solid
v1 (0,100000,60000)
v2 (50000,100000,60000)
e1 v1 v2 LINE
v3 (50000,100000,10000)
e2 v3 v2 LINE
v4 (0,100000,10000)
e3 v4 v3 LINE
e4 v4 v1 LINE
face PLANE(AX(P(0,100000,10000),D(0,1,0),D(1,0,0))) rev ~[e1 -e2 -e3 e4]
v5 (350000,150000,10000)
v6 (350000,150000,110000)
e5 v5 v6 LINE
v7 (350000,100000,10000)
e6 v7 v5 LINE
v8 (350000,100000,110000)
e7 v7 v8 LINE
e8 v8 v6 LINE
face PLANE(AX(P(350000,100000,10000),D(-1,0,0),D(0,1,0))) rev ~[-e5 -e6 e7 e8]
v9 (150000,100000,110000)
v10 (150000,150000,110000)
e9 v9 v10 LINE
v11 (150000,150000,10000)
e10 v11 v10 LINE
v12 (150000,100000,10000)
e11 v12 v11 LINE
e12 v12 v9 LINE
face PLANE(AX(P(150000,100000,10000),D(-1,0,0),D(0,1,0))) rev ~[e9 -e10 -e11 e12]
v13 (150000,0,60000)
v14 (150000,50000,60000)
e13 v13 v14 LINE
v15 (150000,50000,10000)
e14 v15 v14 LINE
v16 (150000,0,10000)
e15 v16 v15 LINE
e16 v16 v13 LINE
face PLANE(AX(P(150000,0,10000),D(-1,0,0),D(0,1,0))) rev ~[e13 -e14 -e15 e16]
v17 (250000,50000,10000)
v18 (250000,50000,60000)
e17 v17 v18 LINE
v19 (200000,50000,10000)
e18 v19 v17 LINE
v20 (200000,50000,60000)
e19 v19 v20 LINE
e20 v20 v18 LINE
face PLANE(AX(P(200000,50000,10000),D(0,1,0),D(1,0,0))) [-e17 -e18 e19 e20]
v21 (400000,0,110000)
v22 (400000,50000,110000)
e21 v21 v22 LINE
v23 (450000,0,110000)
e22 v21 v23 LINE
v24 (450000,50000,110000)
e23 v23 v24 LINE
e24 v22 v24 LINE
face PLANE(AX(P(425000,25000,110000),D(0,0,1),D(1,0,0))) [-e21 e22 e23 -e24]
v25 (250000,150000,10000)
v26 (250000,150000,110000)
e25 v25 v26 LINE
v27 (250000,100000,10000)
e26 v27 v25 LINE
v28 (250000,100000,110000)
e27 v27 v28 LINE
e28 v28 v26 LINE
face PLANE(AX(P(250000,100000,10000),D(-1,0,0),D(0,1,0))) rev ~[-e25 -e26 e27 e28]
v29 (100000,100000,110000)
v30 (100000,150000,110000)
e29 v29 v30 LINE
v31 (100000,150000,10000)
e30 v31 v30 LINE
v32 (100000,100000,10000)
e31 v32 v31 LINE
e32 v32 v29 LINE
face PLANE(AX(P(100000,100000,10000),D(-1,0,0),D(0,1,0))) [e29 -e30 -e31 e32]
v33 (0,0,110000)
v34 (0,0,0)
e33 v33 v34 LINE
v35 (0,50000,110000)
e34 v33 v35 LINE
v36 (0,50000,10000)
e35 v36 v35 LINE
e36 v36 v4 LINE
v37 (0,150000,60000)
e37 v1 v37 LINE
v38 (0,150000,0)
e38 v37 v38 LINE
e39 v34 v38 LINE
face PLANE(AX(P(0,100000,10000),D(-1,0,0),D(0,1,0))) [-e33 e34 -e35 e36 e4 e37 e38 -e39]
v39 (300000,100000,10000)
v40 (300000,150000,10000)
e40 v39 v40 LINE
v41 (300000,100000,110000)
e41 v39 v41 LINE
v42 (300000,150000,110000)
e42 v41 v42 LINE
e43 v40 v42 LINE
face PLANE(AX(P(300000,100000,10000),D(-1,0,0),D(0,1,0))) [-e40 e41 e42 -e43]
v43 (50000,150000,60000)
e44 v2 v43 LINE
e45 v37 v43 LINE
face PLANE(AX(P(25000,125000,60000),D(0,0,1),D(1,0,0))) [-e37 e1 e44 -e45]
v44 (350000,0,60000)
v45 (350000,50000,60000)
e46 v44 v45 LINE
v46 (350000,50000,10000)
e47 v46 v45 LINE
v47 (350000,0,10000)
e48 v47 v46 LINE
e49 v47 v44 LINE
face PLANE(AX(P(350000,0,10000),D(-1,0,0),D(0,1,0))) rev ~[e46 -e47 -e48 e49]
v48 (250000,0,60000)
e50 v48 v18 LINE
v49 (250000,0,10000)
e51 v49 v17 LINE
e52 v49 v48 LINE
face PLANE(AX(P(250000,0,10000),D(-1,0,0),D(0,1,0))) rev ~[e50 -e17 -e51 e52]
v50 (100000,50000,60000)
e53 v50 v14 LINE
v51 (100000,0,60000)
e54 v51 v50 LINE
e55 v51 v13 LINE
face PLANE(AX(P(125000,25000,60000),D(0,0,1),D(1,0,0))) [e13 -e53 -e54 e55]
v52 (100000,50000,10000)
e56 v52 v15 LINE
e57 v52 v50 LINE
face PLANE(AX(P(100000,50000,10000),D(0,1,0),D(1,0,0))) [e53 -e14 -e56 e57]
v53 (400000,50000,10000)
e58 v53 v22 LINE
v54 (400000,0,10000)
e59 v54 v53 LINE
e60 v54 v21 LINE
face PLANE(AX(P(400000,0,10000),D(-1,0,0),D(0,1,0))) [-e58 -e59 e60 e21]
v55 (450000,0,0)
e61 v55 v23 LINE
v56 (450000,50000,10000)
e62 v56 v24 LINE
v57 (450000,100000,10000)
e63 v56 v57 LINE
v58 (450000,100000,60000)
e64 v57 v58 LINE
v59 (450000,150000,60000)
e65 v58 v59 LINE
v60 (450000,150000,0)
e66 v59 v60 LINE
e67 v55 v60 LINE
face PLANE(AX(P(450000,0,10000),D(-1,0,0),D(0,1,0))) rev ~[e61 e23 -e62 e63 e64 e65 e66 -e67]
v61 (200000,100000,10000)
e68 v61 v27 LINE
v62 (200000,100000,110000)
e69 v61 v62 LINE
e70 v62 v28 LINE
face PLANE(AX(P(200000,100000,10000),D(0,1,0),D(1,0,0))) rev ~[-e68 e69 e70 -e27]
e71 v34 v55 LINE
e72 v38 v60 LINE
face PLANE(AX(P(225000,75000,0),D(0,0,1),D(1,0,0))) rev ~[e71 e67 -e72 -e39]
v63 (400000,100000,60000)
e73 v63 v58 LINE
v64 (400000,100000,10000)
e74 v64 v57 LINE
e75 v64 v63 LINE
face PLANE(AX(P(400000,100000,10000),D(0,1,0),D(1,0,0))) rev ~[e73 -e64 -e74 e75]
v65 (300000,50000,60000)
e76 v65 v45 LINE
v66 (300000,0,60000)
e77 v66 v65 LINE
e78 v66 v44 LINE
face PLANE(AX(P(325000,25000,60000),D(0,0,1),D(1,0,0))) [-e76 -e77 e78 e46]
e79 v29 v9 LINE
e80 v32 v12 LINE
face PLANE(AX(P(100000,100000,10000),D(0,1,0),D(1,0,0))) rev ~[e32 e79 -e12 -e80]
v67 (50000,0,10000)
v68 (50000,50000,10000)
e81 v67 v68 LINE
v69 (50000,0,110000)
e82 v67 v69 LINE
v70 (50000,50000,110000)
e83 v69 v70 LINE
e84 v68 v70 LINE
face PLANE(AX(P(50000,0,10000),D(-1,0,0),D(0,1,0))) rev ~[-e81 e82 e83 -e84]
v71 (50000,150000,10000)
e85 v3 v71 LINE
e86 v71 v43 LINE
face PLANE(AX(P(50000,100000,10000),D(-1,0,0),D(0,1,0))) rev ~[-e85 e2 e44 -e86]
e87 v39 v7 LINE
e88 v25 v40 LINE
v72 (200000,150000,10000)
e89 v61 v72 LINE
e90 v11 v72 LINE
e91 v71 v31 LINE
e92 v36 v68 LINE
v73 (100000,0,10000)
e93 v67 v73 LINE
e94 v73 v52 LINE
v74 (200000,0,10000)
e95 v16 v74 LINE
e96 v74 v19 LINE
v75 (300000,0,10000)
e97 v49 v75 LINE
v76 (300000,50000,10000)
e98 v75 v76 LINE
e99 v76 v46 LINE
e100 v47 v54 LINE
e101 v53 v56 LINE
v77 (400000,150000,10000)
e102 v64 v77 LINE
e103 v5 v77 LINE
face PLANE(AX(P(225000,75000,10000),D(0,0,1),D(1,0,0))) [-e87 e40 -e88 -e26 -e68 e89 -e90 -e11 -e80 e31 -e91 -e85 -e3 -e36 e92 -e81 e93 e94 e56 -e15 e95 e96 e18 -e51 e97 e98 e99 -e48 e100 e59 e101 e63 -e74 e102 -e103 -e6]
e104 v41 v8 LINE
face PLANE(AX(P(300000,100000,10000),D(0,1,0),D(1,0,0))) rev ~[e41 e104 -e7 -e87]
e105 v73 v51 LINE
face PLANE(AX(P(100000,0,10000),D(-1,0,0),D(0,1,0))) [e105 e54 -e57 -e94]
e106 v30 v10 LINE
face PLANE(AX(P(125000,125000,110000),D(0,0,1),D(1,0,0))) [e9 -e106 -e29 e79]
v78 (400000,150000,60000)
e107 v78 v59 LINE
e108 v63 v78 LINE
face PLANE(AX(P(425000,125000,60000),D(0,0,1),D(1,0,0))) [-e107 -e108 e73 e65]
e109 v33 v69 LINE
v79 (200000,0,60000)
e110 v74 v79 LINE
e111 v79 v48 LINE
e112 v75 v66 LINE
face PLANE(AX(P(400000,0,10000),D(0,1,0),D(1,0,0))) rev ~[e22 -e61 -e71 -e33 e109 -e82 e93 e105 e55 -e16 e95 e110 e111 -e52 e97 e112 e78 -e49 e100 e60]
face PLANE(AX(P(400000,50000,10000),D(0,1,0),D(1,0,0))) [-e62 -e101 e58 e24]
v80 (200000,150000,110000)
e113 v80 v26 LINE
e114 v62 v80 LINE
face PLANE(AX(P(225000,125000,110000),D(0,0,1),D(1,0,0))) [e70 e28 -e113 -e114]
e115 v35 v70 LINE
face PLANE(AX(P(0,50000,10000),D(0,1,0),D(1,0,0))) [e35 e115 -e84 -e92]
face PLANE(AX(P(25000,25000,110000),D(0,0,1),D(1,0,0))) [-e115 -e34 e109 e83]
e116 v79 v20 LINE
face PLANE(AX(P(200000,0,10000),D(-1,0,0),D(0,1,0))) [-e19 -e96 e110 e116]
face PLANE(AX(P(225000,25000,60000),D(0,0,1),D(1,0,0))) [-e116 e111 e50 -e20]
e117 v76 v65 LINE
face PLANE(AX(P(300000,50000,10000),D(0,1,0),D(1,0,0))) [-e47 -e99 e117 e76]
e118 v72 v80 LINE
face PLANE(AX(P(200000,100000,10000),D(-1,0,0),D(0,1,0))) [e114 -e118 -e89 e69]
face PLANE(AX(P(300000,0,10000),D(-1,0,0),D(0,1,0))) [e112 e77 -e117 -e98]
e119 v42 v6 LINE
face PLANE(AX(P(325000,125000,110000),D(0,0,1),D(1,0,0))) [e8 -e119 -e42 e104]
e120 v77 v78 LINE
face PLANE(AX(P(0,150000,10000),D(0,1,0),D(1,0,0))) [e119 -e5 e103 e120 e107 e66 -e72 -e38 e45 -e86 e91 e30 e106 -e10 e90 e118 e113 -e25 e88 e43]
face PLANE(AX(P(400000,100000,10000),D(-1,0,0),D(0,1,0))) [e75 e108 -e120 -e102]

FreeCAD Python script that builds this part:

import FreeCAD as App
import Part
import Sketcher
from FreeCAD import Vector
Q = App.Units.Quantity

doc = App.newDocument("Part")
body = doc.addObject("PartDesign::Body", "Body")

# Sketch on XY plane
sketch1 = body.newObject("Sketcher::SketchObject", "Sketch")
sketch1.AttachmentSupport = (doc.getObject("XY_Plane"), [""])
sketch1.MapMode = "FlatFace"
sketch1.addGeometry([
    Part.LineSegment(Vector(0, 150000, 0), Vector(0, 0, 0)),
    Part.LineSegment(Vector(0, 0, 0), Vector(450000, 0, 0)),
    Part.LineSegment(Vector(450000, 0, 0), Vector(450000, 150000, 0)),
    Part.LineSegment(Vector(450000, 150000, 0), Vector(0, 150000, 0)),
], False)
sketch1.addConstraint([
    Sketcher.Constraint("Coincident", 0, 2, 1, 1),
    Sketcher.Constraint("Coincident", 1, 2, 2, 1),
    Sketcher.Constraint("Coincident", 2, 2, 3, 1),
    Sketcher.Constraint("Coincident", 3, 2, 0, 1),
    Sketcher.Constraint("Vertical", 0),
    Sketcher.Constraint("Horizontal", 1),
    Sketcher.Constraint("Vertical", 2),
    Sketcher.Constraint("Horizontal", 3),
    Sketcher.Constraint("Coincident", 0, 2, -1, 1),
    Sketcher.Constraint("DistanceX", 1, 1, 1, 2, Q("450000 mm")),
    Sketcher.Constraint("DistanceY", 0, 2, 0, 1, Q("150000 mm")),
])
pad1 = body.newObject("PartDesign::Pad", "Pad")
pad1.Profile = sketch1
pad1.Length = 10000

# Sketch on XY plane
sketch2 = body.newObject("Sketcher::SketchObject", "Sketch001")
sketch2.AttachmentSupport = (doc.getObject("XY_Plane"), [""])
sketch2.MapMode = "FlatFace"
sketch2.AttachmentOffset = App.Placement(Vector(0, 0, 10000), App.Rotation())
sketch2.addGeometry([
    Part.LineSegment(Vector(200000, 150000, 0), Vector(200000, 100000, 0)),  # 0
    Part.LineSegment(Vector(200000, 100000, 0), Vector(250000, 100000, 0)),  # 1
    Part.LineSegment(Vector(250000, 100000, 0), Vector(250000, 150000, 0)),  # 2
    Part.LineSegment(Vector(250000, 150000, 0), Vector(200000, 150000, 0)),  # 3
    Part.LineSegment(Vector(300000, 150000, 0), Vector(300000, 100000, 0)),  # 4
    Part.LineSegment(Vector(300000, 100000, 0), Vector(350000, 100000, 0)),  # 5
    Part.LineSegment(Vector(350000, 100000, 0), Vector(350000, 150000, 0)),  # 6
    Part.LineSegment(Vector(350000, 150000, 0), Vector(300000, 150000, 0)),  # 7
    Part.LineSegment(Vector(400000, 50000, 0), Vector(400000, 0, 0)),  # 8
    Part.LineSegment(Vector(400000, 0, 0), Vector(450000, 0, 0)),  # 9
    Part.LineSegment(Vector(450000, 0, 0), Vector(450000, 50000, 0)),  # 10
    Part.LineSegment(Vector(450000, 50000, 0), Vector(400000, 50000, 0)),  # 11
    Part.LineSegment(Vector(0, 50000, 0), Vector(0, 0, 0)),  # 12
    Part.LineSegment(Vector(0, 0, 0), Vector(50000, 0, 0)),  # 13
    Part.LineSegment(Vector(50000, 0, 0), Vector(50000, 50000, 0)),  # 14
    Part.LineSegment(Vector(50000, 50000, 0), Vector(0, 50000, 0)),  # 15
    Part.LineSegment(Vector(100000, 150000, 0), Vector(100000, 100000, 0)),  # 16
    Part.LineSegment(Vector(100000, 100000, 0), Vector(150000, 100000, 0)),  # 17
    Part.LineSegment(Vector(150000, 100000, 0), Vector(150000, 150000, 0)),  # 18
    Part.LineSegment(Vector(150000, 150000, 0), Vector(100000, 150000, 0)),  # 19
], False)
sketch2.addConstraint([
    Sketcher.Constraint("Coincident", 0, 2, 1, 1),
    Sketcher.Constraint("Coincident", 1, 2, 2, 1),
    Sketcher.Constraint("Coincident", 2, 2, 3, 1),
    Sketcher.Constraint("Coincident", 3, 2, 0, 1),
    Sketcher.Constraint("Coincident", 4, 2, 5, 1),
    Sketcher.Constraint("Coincident", 5, 2, 6, 1),
    Sketcher.Constraint("Coincident", 6, 2, 7, 1),
    Sketcher.Constraint("Coincident", 7, 2, 4, 1),
    Sketcher.Constraint("Coincident", 8, 2, 9, 1),
    Sketcher.Constraint("Coincident", 9, 2, 10, 1),
    Sketcher.Constraint("Coincident", 10, 2, 11, 1),
    Sketcher.Constraint("Coincident", 11, 2, 8, 1),
    Sketcher.Constraint("Coincident", 12, 2, 13, 1),
    Sketcher.Constraint("Coincident", 13, 2, 14, 1),
    Sketcher.Constraint("Coincident", 14, 2, 15, 1),
    Sketcher.Constraint("Coincident", 15, 2, 12, 1),
    Sketcher.Constraint("Coincident", 16, 2, 17, 1),
    Sketcher.Constraint("Coincident", 17, 2, 18, 1),
    Sketcher.Constraint("Coincident", 18, 2, 19, 1),
    Sketcher.Constraint("Coincident", 19, 2, 16, 1),
    Sketcher.Constraint("Vertical", 0),
    Sketcher.Constraint("Horizontal", 1),
    Sketcher.Constraint("Vertical", 2),
    Sketcher.Constraint("Horizontal", 3),
    Sketcher.Constraint("Vertical", 4),
    Sketcher.Constraint("Horizontal", 5),
    Sketcher.Constraint("Vertical", 6),
    Sketcher.Constraint("Horizontal", 7),
    Sketcher.Constraint("Vertical", 8),
    Sketcher.Constraint("Horizontal", 9),
    Sketcher.Constraint("Vertical", 10),
    Sketcher.Constraint("Horizontal", 11),
    Sketcher.Constraint("Vertical", 12),
    Sketcher.Constraint("Horizontal", 13),
    Sketcher.Constraint("Vertical", 14),
    Sketcher.Constraint("Horizontal", 15),
    Sketcher.Constraint("Vertical", 16),
    Sketcher.Constraint("Horizontal", 17),
    Sketcher.Constraint("Vertical", 18),
    Sketcher.Constraint("Horizontal", 19),
    Sketcher.Constraint("Coincident", 12, 2, -1, 1),
    Sketcher.Constraint("PointOnObject", 8, 2, -1),
    Sketcher.Constraint("Horizontal", 1, 2, 4, 2),
    Sketcher.Constraint("Horizontal", 3, 2, 6, 2),
    Sketcher.Constraint("Horizontal", 11, 2, 14, 2),
    Sketcher.Constraint("Horizontal", 5, 2, 16, 2),
    Sketcher.Constraint("Horizontal", 7, 2, 18, 2),
    Sketcher.Constraint("Equal", 3, 5),
    Sketcher.Constraint("Equal", 7, 9),
    Sketcher.Constraint("Equal", 11, 13),
    Sketcher.Constraint("Equal", 15, 17),
    Sketcher.Constraint("Equal", 19, 0),
    Sketcher.Constraint("Equal", 6, 8),
    Sketcher.Constraint("DistanceX", 1, 1, 1, 2, Q("50000 mm")),
    Sketcher.Constraint("DistanceX", -1, 1, 0, 2, Q("200000 mm")),
    Sketcher.Constraint("DistanceY", -1, 1, 0, 2, Q("100000 mm")),
    Sketcher.Constraint("DistanceX", -1, 1, 4, 2, Q("300000 mm")),
    Sketcher.Constraint("DistanceX", -1, 1, 8, 2, Q("400000 mm")),
    Sketcher.Constraint("DistanceX", -1, 1, 16, 2, Q("100000 mm")),
])
pad2 = body.newObject("PartDesign::Pad", "Pad001")
pad2.Profile = sketch2
pad2.Length = 100000

# Sketch on XY plane
sketch3 = body.newObject("Sketcher::SketchObject", "Sketch002")
sketch3.AttachmentSupport = (doc.getObject("XY_Plane"), [""])
sketch3.MapMode = "FlatFace"
sketch3.AttachmentOffset = App.Placement(Vector(0, 0, 10000), App.Rotation())
sketch3.addGeometry([
    Part.LineSegment(Vector(300000, 50000, 0), Vector(300000, 0, 0)),  # 0
    Part.LineSegment(Vector(300000, 0, 0), Vector(350000, 0, 0)),  # 1
    Part.LineSegment(Vector(350000, 0, 0), Vector(350000, 50000, 0)),  # 2
    Part.LineSegment(Vector(350000, 50000, 0), Vector(300000, 50000, 0)),  # 3
    Part.LineSegment(Vector(200000, 50000, 0), Vector(200000, 0, 0)),  # 4
    Part.LineSegment(Vector(200000, 0, 0), Vector(250000, 0, 0)),  # 5
    Part.LineSegment(Vector(250000, 0, 0), Vector(250000, 50000, 0)),  # 6
    Part.LineSegment(Vector(250000, 50000, 0), Vector(200000, 50000, 0)),  # 7
    Part.LineSegment(Vector(100000, 50000, 0), Vector(100000, 0, 0)),  # 8
    Part.LineSegment(Vector(100000, 0, 0), Vector(150000, 0, 0)),  # 9
    Part.LineSegment(Vector(150000, 0, 0), Vector(150000, 50000, 0)),  # 10
    Part.LineSegment(Vector(150000, 50000, 0), Vector(100000, 50000, 0)),  # 11
    Part.LineSegment(Vector(0, 150000, 0), Vector(0, 100000, 0)),  # 12
    Part.LineSegment(Vector(0, 100000, 0), Vector(50000, 100000, 0)),  # 13
    Part.LineSegment(Vector(50000, 100000, 0), Vector(50000, 150000, 0)),  # 14
    Part.LineSegment(Vector(50000, 150000, 0), Vector(0, 150000, 0)),  # 15
    Part.LineSegment(Vector(400000, 150000, 0), Vector(400000, 100000, 0)),  # 16
    Part.LineSegment(Vector(400000, 100000, 0), Vector(450000, 100000, 0)),  # 17
    Part.LineSegment(Vector(450000, 100000, 0), Vector(450000, 150000, 0)),  # 18
    Part.LineSegment(Vector(450000, 150000, 0), Vector(400000, 150000, 0)),  # 19
], False)
sketch3.addConstraint([
    Sketcher.Constraint("Coincident", 0, 2, 1, 1),
    Sketcher.Constraint("Coincident", 1, 2, 2, 1),
    Sketcher.Constraint("Coincident", 2, 2, 3, 1),
    Sketcher.Constraint("Coincident", 3, 2, 0, 1),
    Sketcher.Constraint("Coincident", 4, 2, 5, 1),
    Sketcher.Constraint("Coincident", 5, 2, 6, 1),
    Sketcher.Constraint("Coincident", 6, 2, 7, 1),
    Sketcher.Constraint("Coincident", 7, 2, 4, 1),
    Sketcher.Constraint("Coincident", 8, 2, 9, 1),
    Sketcher.Constraint("Coincident", 9, 2, 10, 1),
    Sketcher.Constraint("Coincident", 10, 2, 11, 1),
    Sketcher.Constraint("Coincident", 11, 2, 8, 1),
    Sketcher.Constraint("Coincident", 12, 2, 13, 1),
    Sketcher.Constraint("Coincident", 13, 2, 14, 1),
    Sketcher.Constraint("Coincident", 14, 2, 15, 1),
    Sketcher.Constraint("Coincident", 15, 2, 12, 1),
    Sketcher.Constraint("Coincident", 16, 2, 17, 1),
    Sketcher.Constraint("Coincident", 17, 2, 18, 1),
    Sketcher.Constraint("Coincident", 18, 2, 19, 1),
    Sketcher.Constraint("Coincident", 19, 2, 16, 1),
    Sketcher.Constraint("Vertical", 0),
    Sketcher.Constraint("Horizontal", 1),
    Sketcher.Constraint("Vertical", 2),
    Sketcher.Constraint("Horizontal", 3),
    Sketcher.Constraint("Vertical", 4),
    Sketcher.Constraint("Horizontal", 5),
    Sketcher.Constraint("Vertical", 6),
    Sketcher.Constraint("Horizontal", 7),
    Sketcher.Constraint("Vertical", 8),
    Sketcher.Constraint("Horizontal", 9),
    Sketcher.Constraint("Vertical", 10),
    Sketcher.Constraint("Horizontal", 11),
    Sketcher.Constraint("Vertical", 12),
    Sketcher.Constraint("Horizontal", 13),
    Sketcher.Constraint("Vertical", 14),
    Sketcher.Constraint("Horizontal", 15),
    Sketcher.Constraint("Vertical", 16),
    Sketcher.Constraint("Horizontal", 17),
    Sketcher.Constraint("Vertical", 18),
    Sketcher.Constraint("Horizontal", 19),
    Sketcher.Constraint("PointOnObject", 0, 2, -1),
    Sketcher.Constraint("PointOnObject", 4, 2, -1),
    Sketcher.Constraint("PointOnObject", 8, 2, -1),
    Sketcher.Constraint("PointOnObject", 12, 2, -2),
    Sketcher.Constraint("Horizontal", 3, 2, 6, 2),
    Sketcher.Constraint("Horizontal", 7, 2, 10, 2),
    Sketcher.Constraint("Horizontal", 13, 2, 16, 2),
    Sketcher.Constraint("Horizontal", 15, 2, 18, 2),
    Sketcher.Constraint("Equal", 3, 5),
    Sketcher.Constraint("Equal", 7, 9),
    Sketcher.Constraint("Equal", 11, 13),
    Sketcher.Constraint("Equal", 15, 17),
    Sketcher.Constraint("Equal", 19, 0),
    Sketcher.Constraint("Equal", 10, 12),
    Sketcher.Constraint("DistanceX", 1, 1, 1, 2, Q("50000 mm")),
    Sketcher.Constraint("DistanceX", -1, 1, 0, 2, Q("300000 mm")),
    Sketcher.Constraint("DistanceX", -1, 1, 4, 2, Q("200000 mm")),
    Sketcher.Constraint("DistanceX", -1, 1, 8, 2, Q("100000 mm")),
    Sketcher.Constraint("DistanceY", -1, 1, 12, 2, Q("100000 mm")),
    Sketcher.Constraint("DistanceX", -1, 1, 16, 2, Q("400000 mm")),
])
pad3 = body.newObject("PartDesign::Pad", "Pad002")
pad3.Profile = sketch3
pad3.Length = 50000

doc.recompute()
